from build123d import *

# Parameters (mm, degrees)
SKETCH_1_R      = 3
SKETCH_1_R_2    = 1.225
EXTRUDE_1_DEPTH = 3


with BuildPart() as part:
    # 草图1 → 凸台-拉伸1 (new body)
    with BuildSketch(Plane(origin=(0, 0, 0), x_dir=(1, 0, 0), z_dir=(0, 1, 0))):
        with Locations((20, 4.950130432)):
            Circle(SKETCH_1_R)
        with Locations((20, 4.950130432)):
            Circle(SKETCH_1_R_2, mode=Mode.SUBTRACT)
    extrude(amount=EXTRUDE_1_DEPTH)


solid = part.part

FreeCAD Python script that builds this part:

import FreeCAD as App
import Part
import Sketcher

V = App.Vector

doc = App.newDocument("Part")
params = doc.addObject("Spreadsheet::Sheet", "Params")
for row, (alias, value) in enumerate([
    ("sketch1_diameter", "6 mm"),
    ("sketch1_diameter2", "2.45 mm"),
    ("pad1_length", "3 mm"),
], start=1):
    params.set(f"A{row}", alias)
    params.set(f"B{row}", "=" + value)
    params.setAlias(f"B{row}", alias)

body = doc.addObject("PartDesign::Body", "Body")

sketch1 = body.newObject("Sketcher::SketchObject", "Sketch")
sketch1.AttachmentSupport = (doc.getObject("XZ_Plane"), [""])
sketch1.MapMode = "FlatFace"
sketch1.addGeometry(Part.Circle(V(20, -5, 0), V(0, 0, 1), 3), False)
sketch1.addGeometry(Part.Circle(V(20, -5, 0), V(0, 0, 1), 1.2), False)
sketch1.addConstraint(Sketcher.Constraint("Coincident", 1, 3, 0, 3))
sketch1.addConstraint(Sketcher.Constraint("Diameter", 0, 6.0))
sketch1.addConstraint(Sketcher.Constraint("Diameter", 1, 2.45))
sketch1.addConstraint(Sketcher.Constraint("DistanceX", -1, 1, 0, 3, 20.0))
sketch1.addConstraint(Sketcher.Constraint("DistanceY", 0, 3, -1, 1, 4.95013))
sketch1.setExpression("Constraints[1]", "Params.sketch1_diameter")
sketch1.setExpression("Constraints[2]", "Params.sketch1_diameter2")
pad1 = body.newObject("PartDesign::Pad", "Pad")
pad1.Profile = sketch1
pad1.setExpression("Length", "Params.pad1_length")
pad1.Reversed = True

doc.recompute()
